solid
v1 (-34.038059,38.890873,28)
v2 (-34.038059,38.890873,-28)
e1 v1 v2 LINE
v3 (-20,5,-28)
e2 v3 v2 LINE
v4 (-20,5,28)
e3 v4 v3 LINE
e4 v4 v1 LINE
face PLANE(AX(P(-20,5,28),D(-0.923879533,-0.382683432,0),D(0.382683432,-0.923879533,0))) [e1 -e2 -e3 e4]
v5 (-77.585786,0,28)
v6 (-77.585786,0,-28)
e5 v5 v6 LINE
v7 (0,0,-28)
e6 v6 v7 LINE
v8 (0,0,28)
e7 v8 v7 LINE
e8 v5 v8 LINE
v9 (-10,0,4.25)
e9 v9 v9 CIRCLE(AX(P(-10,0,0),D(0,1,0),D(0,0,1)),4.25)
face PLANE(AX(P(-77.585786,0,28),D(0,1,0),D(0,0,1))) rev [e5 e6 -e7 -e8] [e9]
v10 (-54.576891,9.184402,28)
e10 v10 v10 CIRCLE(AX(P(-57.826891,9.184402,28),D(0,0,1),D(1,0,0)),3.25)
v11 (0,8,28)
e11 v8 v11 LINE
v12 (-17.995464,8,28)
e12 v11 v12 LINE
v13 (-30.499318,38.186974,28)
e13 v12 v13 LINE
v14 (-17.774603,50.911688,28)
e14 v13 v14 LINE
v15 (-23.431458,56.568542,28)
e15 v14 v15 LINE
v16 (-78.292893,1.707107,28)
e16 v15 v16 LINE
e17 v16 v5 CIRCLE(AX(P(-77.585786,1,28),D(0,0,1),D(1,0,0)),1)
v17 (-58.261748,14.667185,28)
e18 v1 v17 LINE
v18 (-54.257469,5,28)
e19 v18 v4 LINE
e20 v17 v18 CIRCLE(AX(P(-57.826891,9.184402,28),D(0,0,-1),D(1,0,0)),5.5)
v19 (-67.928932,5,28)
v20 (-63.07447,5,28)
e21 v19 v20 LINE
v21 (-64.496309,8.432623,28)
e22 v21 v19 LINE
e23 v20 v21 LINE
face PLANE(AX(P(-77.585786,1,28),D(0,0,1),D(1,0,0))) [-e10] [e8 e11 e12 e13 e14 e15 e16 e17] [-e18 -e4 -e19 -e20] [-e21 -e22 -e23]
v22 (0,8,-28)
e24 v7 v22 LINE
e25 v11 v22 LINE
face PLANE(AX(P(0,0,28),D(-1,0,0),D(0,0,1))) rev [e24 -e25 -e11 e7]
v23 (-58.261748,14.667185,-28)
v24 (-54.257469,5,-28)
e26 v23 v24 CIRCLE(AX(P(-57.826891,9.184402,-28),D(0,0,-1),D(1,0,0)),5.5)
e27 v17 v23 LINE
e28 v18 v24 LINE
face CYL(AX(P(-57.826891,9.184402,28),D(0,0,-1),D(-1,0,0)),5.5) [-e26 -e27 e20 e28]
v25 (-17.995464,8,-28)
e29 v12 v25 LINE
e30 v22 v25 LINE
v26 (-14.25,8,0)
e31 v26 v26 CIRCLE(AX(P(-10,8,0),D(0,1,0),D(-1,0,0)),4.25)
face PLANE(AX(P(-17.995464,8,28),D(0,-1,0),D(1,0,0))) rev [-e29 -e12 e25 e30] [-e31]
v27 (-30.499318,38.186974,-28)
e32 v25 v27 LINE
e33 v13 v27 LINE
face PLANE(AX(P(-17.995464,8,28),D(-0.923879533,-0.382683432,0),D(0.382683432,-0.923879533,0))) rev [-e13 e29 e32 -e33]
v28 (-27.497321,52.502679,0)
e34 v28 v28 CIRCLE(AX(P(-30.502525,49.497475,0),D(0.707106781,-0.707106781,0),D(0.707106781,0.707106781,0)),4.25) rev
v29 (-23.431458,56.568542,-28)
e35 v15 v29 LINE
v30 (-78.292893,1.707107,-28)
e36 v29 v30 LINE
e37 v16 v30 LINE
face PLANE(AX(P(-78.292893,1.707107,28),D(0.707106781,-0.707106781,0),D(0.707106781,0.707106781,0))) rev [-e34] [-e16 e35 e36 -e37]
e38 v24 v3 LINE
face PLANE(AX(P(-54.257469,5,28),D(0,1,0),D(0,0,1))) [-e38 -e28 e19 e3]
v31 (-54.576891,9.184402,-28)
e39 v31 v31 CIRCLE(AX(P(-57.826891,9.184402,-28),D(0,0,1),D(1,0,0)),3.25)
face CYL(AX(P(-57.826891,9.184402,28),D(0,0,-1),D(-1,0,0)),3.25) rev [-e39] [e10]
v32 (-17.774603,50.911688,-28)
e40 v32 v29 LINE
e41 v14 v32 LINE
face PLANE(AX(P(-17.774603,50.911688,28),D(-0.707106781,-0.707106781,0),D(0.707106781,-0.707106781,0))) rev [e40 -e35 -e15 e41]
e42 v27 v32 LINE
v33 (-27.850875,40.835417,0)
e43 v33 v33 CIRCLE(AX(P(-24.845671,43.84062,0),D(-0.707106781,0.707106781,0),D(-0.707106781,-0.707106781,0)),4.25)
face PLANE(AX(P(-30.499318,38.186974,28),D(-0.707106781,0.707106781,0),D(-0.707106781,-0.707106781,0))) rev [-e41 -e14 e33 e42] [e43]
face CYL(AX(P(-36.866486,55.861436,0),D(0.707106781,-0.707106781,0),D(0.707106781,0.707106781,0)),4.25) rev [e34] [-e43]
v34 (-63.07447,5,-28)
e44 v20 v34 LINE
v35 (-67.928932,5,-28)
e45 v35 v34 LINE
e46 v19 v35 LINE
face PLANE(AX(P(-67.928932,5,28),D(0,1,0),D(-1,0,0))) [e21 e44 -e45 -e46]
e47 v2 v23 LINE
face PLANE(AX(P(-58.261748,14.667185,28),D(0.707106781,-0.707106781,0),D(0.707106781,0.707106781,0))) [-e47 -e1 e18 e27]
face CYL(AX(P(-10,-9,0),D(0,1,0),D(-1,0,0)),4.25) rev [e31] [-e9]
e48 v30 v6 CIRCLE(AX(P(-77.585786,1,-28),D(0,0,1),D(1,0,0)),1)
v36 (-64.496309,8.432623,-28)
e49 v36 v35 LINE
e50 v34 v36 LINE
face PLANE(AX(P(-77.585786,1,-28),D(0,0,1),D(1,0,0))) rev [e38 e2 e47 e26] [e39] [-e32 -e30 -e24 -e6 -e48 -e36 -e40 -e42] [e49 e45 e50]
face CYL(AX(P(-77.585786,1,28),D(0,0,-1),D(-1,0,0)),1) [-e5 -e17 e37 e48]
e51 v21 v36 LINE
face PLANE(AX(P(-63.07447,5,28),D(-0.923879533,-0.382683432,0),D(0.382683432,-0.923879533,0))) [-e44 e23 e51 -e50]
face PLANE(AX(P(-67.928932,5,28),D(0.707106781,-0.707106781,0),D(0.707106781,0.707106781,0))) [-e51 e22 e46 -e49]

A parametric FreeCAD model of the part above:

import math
import FreeCAD as App
import Part
import Sketcher
from FreeCAD import Vector
Q = App.Units.Quantity


def add_polygon(sketch, points):
    """Adds a closed chain of lines whose ends are joined by coincident constraints."""
    first, n = sketch.GeometryCount, len(points)
    for a, b in zip(points, points[1:] + points[:1]):
        sketch.addGeometry(Part.LineSegment(App.Vector(*a, 0), App.Vector(*b, 0)), False)
    for i in range(n):
        sketch.addConstraint(Sketcher.Constraint("Coincident", first + i, 2, first + (i + 1) % n, 1))

doc = App.newDocument("Part")
body = doc.addObject("PartDesign::Body", "Body")

# Sketch on XY plane
sketch1 = doc.addObject("Sketcher::SketchObject", "Sketch")
body.addObject(sketch1)
sketch1.AttachmentSupport = (doc.XY_Plane, [""])
sketch1.MapMode = "FlatFace"
sketch1.addGeometry(Part.LineSegment(Vector(-77.6, 0, 0), Vector(0, 0, 0)), False)  # 0
sketch1.addGeometry(Part.LineSegment(Vector(0, 0, 0), Vector(0, 8, 0)), False)  # 1
sketch1.addGeometry(Part.LineSegment(Vector(0, 8, 0), Vector(-18, 8, 0)), False)  # 2
sketch1.addGeometry(Part.LineSegment(Vector(-18, 8, 0), Vector(-30.5, 38.2, 0)), False)  # 3
sketch1.addGeometry(Part.LineSegment(Vector(-30.5, 38.2, 0), Vector(-17.8, 50.9, 0)), False)  # 4
sketch1.addGeometry(Part.LineSegment(Vector(-17.8, 50.9, 0), Vector(-23.4, 56.6, 0)), False)  # 5
sketch1.addGeometry(Part.LineSegment(Vector(-23.4, 56.6, 0), Vector(-78.3, 1.7, 0)), False)  # 6
sketch1.addGeometry(Part.ArcOfCircle(Part.Circle(Vector(-77.6, 1, 0), Vector(0, 0, 1), 1), math.radians(135), math.radians(270)), False)  # 7
add_polygon(sketch1, [(-63.1, 5), (-67.9, 5), (-64.5, 8.4)])  # lines 8-10
sketch1.addGeometry(Part.Circle(Vector(-57.8, 9.2, 0), Vector(0, 0, 1), 3.2), False)  # 11
sketch1.addGeometry(Part.LineSegment(Vector(-20, 5, 0), Vector(-54.3, 5, 0)), False)  # 12
sketch1.addGeometry(Part.ArcOfCircle(Part.Circle(Vector(-57.8, 9.2, 0), Vector(0, 0, 1), 5.5), math.radians(-50), math.radians(95)), False)  # 13
sketch1.addGeometry(Part.LineSegment(Vector(-58.3, 14.7, 0), Vector(-34, 38.9, 0)), False)  # 14
sketch1.addGeometry(Part.LineSegment(Vector(-34, 38.9, 0), Vector(-20, 5, 0)), False)  # 15
sketch1.addConstraint([
    Sketcher.Constraint("Coincident", 0, 2, 1, 1),
    Sketcher.Constraint("Coincident", 1, 2, 2, 1),
    Sketcher.Constraint("Coincident", 2, 2, 3, 1),
    Sketcher.Constraint("Coincident", 3, 2, 4, 1),
    Sketcher.Constraint("Coincident", 4, 2, 5, 1),
    Sketcher.Constraint("Coincident", 5, 2, 6, 1),
    Sketcher.Constraint("Tangent", 6, 2, 7, 1),
    Sketcher.Constraint("Tangent", 7, 2, 0, 1),
    Sketcher.Constraint("Coincident", 12, 2, 13, 1),
    Sketcher.Constraint("Coincident", 13, 2, 14, 1),
    Sketcher.Constraint("Coincident", 14, 2, 15, 1),
    Sketcher.Constraint("Coincident", 15, 2, 12, 1),
    Sketcher.Constraint("Horizontal", 0),
    Sketcher.Constraint("Vertical", 1),
    Sketcher.Constraint("Horizontal", 2),
    Sketcher.Constraint("Horizontal", 8),
    Sketcher.Constraint("Horizontal", 12),
    Sketcher.Constraint("Coincident", 0, 2, -1, 1),
    Sketcher.Constraint("Coincident", 13, 3, 11, 3),
    Sketcher.Constraint("Perpendicular", 4, 5),
    Sketcher.Constraint("Perpendicular", 5, 6),
    Sketcher.Constraint("Parallel", 6, 9),
    Sketcher.Constraint("Parallel", 3, 10),
    Sketcher.Constraint("Parallel", 9, 14),
    Sketcher.Constraint("Parallel", 10, 15),
    Sketcher.Constraint("Horizontal", 10, 2, 12, 2),
    Sketcher.Constraint("Radius", 7, Q("1 mm")),
    Sketcher.Constraint("Diameter", 11, Q("6.5 mm")),
    Sketcher.Constraint("Radius", 13, Q("5.5 mm")),
    Sketcher.Constraint("DistanceY", 1, 1, 1, 2, Q("8 mm")),
    Sketcher.Constraint("Angle", 4, Q("45 deg")),
    Sketcher.Constraint("Distance", 5, Q("8 mm")),
    Sketcher.Constraint("DistanceY", -1, 1, 8, 2, Q("5 mm")),
    Sketcher.Constraint("DistanceX", 15, 2, -1, 1, Q("20 mm")),
    Sketcher.Constraint("Angle", 3, Q("112.5 deg")),
    Sketcher.Constraint("DistanceX", 6, 2, 11, 3, Q("20.466002 mm")),
    Sketcher.Constraint("DistanceX", 10, 2, 12, 2, Q("8.817002 mm")),
    Sketcher.Constraint("DistanceX", 8, 2, 8, 1, Q("4.854462 mm")),
    Sketcher.Constraint("DistanceX", 12, 2, 12, 1, Q("34.257469 mm")),
    Sketcher.Constraint("DistanceY", 3, 2, 14, 2, Q("0.703899 mm")),
    Sketcher.Constraint("DistanceX", 14, 2, 5, 2, Q("10.606602 mm")),
    Sketcher.Constraint("Distance", 14, Q("34.257469 mm")),
    Sketcher.Constraint("DistanceX", 0, 1, 0, 2, Q("77.585786 mm")),
])
pad1 = doc.addObject("PartDesign::Pad", "Pad")
body.addObject(pad1)
pad1.Profile = sketch1
pad1.Length = 56
pad1.Midplane = True

# Sketch on XZ plane
sketch2 = doc.addObject("Sketcher::SketchObject", "Sketch001")
body.addObject(sketch2)
sketch2.AttachmentSupport = (doc.XZ_Plane, [""])
sketch2.MapMode = "FlatFace"
sketch2.AttachmentOffset = App.Placement(Vector(0, 0, -8), App.Rotation())
sketch2.addGeometry(Part.Circle(Vector(-10, 0, 0), Vector(0, 0, 1), 4.2), False)
sketch2.addConstraint([
    Sketcher.Constraint("PointOnObject", 0, 3, -1),
    Sketcher.Constraint("Diameter", 0, Q("8.5 mm")),
    Sketcher.Constraint("DistanceX", 0, 3, -1, 1, Q("10 mm")),
])
pocket1 = doc.addObject("PartDesign::Pocket", "Pocket")
body.addObject(pocket1)
pocket1.Profile = sketch2
pocket1.Length = 17
pocket1.Reversed = True
doc.recompute()

datumplane = doc.addObject("PartDesign::Plane", "DatumPlane")
body.addObject(datumplane)
datumplane.Placement = App.Placement(Vector(-11.715729, 28.284271, 0), App.Rotation(Vector(0.923879533, 0.382683432, 0), Vector(0, 0, -1), Vector(-0.382683432, 0.923879533, 0), "ZXY"))
mirrored = doc.addObject("PartDesign::Mirrored", "Mirrored")
body.addObject(mirrored)
mirrored.Originals = [pocket1]
mirrored.MirrorPlane = (datumplane, [""])
body.Tip = mirrored

doc.recompute()
